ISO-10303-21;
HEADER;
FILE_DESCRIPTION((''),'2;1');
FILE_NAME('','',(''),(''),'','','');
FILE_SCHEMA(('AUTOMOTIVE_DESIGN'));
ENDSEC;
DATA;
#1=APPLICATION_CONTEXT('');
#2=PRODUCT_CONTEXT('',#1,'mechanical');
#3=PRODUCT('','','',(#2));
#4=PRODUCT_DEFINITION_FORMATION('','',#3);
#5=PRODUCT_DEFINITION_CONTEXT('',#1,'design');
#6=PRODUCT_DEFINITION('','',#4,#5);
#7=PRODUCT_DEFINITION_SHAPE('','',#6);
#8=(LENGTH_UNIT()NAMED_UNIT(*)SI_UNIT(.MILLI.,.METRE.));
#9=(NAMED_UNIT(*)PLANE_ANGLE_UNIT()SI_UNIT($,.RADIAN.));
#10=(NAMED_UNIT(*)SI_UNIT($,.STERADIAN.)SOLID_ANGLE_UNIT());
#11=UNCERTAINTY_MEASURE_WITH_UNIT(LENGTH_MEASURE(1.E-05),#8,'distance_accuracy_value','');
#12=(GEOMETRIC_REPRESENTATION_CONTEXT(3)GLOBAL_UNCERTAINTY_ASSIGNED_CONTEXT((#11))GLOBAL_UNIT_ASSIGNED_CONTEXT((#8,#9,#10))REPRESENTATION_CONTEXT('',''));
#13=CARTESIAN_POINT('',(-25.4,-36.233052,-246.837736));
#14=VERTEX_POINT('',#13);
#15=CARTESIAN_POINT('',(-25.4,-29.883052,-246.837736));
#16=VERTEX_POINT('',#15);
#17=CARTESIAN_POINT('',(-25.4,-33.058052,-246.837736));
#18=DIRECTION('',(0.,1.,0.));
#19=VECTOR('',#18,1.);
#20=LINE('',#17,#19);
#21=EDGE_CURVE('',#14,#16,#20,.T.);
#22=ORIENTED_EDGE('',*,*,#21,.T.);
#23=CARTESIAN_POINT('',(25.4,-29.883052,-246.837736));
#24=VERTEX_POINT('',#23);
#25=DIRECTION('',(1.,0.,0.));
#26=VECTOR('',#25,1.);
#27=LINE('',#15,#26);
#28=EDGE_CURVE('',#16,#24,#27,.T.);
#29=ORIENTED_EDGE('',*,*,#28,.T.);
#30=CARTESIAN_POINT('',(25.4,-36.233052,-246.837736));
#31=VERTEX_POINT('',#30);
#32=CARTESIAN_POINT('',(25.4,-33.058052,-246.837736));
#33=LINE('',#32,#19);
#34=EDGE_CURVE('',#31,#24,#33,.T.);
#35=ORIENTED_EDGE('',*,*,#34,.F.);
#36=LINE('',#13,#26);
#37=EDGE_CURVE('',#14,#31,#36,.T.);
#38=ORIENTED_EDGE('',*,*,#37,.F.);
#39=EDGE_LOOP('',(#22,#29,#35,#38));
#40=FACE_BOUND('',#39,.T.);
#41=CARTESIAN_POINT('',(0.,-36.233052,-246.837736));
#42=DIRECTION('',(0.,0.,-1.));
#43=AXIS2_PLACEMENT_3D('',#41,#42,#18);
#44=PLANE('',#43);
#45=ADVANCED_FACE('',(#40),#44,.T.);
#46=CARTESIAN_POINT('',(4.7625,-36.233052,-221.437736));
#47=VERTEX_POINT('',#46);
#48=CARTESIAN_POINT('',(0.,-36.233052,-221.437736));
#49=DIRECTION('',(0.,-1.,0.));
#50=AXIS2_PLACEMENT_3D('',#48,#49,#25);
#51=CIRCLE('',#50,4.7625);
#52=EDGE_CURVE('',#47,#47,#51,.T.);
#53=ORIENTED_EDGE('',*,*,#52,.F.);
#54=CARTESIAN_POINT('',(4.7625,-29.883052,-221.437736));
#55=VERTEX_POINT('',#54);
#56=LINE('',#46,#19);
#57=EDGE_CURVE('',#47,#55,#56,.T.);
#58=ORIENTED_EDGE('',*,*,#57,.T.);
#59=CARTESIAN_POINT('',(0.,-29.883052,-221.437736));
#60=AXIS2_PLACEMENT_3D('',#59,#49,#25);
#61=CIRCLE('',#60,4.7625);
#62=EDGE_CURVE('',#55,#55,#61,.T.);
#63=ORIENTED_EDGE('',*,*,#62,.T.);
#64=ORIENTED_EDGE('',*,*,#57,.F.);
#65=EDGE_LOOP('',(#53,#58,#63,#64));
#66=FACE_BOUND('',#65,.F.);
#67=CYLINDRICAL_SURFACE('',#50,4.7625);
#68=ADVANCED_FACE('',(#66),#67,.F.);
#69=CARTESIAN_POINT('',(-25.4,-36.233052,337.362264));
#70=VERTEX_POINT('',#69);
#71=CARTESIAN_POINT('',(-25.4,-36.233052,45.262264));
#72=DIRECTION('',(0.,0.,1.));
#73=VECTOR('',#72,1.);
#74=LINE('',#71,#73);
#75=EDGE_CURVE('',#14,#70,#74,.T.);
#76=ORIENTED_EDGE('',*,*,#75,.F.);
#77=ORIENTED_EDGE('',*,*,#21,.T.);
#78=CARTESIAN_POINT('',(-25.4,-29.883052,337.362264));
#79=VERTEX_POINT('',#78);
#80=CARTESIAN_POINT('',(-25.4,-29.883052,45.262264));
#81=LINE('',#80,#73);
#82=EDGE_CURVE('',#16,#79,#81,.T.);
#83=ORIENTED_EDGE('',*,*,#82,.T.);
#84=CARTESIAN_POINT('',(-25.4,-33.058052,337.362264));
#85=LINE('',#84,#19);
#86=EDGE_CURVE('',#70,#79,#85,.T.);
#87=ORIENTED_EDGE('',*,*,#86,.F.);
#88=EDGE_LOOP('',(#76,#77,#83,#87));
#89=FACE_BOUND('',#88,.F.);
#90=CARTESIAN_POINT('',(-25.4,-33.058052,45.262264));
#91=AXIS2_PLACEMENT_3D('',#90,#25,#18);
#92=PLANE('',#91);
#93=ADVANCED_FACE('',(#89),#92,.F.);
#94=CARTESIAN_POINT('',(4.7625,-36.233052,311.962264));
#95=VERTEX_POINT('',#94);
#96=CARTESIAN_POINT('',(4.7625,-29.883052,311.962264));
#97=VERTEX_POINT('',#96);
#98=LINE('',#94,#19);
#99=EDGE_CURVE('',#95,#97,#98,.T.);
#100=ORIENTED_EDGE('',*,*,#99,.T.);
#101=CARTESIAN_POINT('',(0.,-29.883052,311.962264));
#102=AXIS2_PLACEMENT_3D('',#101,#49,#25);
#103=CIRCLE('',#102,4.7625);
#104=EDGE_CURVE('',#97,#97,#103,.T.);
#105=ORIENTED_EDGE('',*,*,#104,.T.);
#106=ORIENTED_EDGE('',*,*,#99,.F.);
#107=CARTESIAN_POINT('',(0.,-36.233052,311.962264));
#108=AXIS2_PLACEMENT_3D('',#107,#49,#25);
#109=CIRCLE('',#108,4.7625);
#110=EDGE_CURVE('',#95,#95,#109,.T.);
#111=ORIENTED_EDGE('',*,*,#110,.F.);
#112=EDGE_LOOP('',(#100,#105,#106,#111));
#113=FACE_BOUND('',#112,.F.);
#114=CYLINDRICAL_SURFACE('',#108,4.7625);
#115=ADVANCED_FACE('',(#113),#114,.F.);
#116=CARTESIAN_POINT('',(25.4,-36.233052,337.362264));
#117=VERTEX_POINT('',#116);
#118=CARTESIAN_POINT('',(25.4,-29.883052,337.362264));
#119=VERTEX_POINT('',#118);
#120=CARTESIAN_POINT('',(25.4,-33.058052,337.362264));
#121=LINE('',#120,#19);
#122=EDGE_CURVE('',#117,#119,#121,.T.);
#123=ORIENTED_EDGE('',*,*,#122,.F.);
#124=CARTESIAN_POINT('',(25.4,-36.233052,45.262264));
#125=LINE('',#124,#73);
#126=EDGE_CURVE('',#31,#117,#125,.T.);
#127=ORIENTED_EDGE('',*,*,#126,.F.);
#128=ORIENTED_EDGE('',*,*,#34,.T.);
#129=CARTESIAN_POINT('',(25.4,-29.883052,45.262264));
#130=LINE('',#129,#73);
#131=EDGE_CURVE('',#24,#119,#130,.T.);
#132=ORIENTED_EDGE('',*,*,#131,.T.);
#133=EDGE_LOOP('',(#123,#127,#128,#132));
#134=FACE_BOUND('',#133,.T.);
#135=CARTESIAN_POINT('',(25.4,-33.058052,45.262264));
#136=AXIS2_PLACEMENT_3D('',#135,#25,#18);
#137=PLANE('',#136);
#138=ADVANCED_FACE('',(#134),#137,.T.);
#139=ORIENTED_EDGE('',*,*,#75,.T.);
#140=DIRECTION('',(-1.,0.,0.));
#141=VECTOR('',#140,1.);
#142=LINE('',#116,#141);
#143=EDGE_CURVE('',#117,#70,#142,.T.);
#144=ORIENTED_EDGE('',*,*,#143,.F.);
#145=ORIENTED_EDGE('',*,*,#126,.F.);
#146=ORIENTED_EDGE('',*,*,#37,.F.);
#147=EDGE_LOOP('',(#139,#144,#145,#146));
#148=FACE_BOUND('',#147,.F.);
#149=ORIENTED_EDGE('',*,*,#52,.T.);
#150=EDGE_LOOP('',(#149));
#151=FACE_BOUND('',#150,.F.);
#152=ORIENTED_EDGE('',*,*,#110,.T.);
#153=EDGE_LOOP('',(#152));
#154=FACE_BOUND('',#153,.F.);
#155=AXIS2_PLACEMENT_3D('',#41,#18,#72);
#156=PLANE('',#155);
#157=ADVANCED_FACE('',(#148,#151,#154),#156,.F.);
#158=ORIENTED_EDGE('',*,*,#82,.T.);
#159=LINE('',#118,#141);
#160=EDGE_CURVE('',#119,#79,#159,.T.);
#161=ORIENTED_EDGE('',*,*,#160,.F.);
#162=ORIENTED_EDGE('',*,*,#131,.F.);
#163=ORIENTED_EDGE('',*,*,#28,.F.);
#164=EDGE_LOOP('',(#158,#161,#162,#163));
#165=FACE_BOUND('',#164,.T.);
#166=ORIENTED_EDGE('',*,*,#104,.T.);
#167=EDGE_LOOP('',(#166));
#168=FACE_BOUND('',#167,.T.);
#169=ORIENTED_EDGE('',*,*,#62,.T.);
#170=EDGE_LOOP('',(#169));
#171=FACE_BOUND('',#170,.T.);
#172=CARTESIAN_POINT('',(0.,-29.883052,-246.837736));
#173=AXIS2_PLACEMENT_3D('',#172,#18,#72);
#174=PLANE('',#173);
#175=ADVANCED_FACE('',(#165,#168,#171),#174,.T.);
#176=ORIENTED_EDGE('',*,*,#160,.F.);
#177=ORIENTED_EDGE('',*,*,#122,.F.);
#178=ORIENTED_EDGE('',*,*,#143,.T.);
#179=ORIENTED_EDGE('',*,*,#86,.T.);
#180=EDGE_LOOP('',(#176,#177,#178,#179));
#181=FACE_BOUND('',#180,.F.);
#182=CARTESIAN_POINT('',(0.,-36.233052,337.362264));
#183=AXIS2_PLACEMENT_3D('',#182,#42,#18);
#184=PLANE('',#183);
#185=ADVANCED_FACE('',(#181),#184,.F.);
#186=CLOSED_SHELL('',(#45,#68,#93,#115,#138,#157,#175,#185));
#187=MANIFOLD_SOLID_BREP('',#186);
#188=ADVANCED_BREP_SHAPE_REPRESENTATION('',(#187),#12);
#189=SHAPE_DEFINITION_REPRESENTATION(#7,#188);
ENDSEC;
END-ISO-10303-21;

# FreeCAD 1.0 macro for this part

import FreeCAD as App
import Part
import Sketcher
from FreeCAD import Vector
Q = App.Units.Quantity


def add_polygon(sketch, points):
    """Adds a closed chain of lines whose ends are joined by coincident constraints."""
    first, n = sketch.GeometryCount, len(points)
    for a, b in zip(points, points[1:] + points[:1]):
        sketch.addGeometry(Part.LineSegment(App.Vector(*a, 0), App.Vector(*b, 0)), False)
    for i in range(n):
        sketch.addConstraint(Sketcher.Constraint("Coincident", first + i, 2, first + (i + 1) % n, 1))

doc = App.newDocument("Part")
body = doc.addObject("PartDesign::Body", "Body")

sketch1 = body.newObject("Sketcher::SketchObject", "Sketch")
sketch1.AttachmentSupport = (doc.getObject("YZ_Plane"), [""])
sketch1.MapMode = "FlatFace"
add_polygon(sketch1, [(-36.233052, 337.362264), (-36.233052, -246.837736), (-29.883052, -246.837736), (-29.883052, 337.362264)])
sketch1.addConstraint(Sketcher.Constraint("Vertical", 0))
sketch1.addConstraint(Sketcher.Constraint("Horizontal", 1))
sketch1.addConstraint(Sketcher.Constraint("Vertical", 2))
sketch1.addConstraint(Sketcher.Constraint("Horizontal", 3))
sketch1.addConstraint(Sketcher.Constraint("DistanceY", 0, 2, 0, 1, Q("23 in")))
sketch1.addConstraint(Sketcher.Constraint("DistanceX", 1, 1, 1, 2, Q("0.25 in")))
sketch1.addConstraint(Sketcher.Constraint("DistanceX", 1, 2, -1, 1, 29.883052))
sketch1.addConstraint(Sketcher.Constraint("DistanceY", 0, 2, -1, 1, 246.837736))
pad1 = body.newObject("PartDesign::Pad", "Pad")
pad1.Profile = sketch1
pad1.Length = Q("2 in")
pad1.Midplane = True

sketch2 = body.newObject("Sketcher::SketchObject", "Sketch001")
sketch2.AttachmentSupport = (doc.getObject("XZ_Plane"), [""])
sketch2.MapMode = "FlatFace"
sketch2.AttachmentOffset = App.Placement(Vector(0, 0, 36.233052), App.Rotation())
sketch2.addGeometry(Part.Circle(Vector(0, 311.962264, 0), Vector(0, 0, 1), 4.7625), False)
sketch2.addGeometry(Part.Circle(Vector(0, -221.437736, 0), Vector(0, 0, 1), 4.7625), False)
sketch2.addConstraint(Sketcher.Constraint("Equal", 0, 1))
sketch2.addConstraint(Sketcher.Constraint("PointOnObject", 0, 3, -2))
sketch2.addConstraint(Sketcher.Constraint("PointOnObject", 1, 3, -2))
sketch2.addConstraint(Sketcher.Constraint("Diameter", 0, Q("0.375 in")))
sketch2.addConstraint(Sketcher.Constraint("DistanceY", 1, 3, 0, 3, Q("21 in")))
sketch2.addConstraint(Sketcher.Constraint("DistanceY", -1, 1, 0, 3, 311.962264))
pocket1 = body.newObject("PartDesign::Pocket", "Pocket")
pocket1.Profile = sketch2
pocket1.Type = "ThroughAll"

doc.recompute()
